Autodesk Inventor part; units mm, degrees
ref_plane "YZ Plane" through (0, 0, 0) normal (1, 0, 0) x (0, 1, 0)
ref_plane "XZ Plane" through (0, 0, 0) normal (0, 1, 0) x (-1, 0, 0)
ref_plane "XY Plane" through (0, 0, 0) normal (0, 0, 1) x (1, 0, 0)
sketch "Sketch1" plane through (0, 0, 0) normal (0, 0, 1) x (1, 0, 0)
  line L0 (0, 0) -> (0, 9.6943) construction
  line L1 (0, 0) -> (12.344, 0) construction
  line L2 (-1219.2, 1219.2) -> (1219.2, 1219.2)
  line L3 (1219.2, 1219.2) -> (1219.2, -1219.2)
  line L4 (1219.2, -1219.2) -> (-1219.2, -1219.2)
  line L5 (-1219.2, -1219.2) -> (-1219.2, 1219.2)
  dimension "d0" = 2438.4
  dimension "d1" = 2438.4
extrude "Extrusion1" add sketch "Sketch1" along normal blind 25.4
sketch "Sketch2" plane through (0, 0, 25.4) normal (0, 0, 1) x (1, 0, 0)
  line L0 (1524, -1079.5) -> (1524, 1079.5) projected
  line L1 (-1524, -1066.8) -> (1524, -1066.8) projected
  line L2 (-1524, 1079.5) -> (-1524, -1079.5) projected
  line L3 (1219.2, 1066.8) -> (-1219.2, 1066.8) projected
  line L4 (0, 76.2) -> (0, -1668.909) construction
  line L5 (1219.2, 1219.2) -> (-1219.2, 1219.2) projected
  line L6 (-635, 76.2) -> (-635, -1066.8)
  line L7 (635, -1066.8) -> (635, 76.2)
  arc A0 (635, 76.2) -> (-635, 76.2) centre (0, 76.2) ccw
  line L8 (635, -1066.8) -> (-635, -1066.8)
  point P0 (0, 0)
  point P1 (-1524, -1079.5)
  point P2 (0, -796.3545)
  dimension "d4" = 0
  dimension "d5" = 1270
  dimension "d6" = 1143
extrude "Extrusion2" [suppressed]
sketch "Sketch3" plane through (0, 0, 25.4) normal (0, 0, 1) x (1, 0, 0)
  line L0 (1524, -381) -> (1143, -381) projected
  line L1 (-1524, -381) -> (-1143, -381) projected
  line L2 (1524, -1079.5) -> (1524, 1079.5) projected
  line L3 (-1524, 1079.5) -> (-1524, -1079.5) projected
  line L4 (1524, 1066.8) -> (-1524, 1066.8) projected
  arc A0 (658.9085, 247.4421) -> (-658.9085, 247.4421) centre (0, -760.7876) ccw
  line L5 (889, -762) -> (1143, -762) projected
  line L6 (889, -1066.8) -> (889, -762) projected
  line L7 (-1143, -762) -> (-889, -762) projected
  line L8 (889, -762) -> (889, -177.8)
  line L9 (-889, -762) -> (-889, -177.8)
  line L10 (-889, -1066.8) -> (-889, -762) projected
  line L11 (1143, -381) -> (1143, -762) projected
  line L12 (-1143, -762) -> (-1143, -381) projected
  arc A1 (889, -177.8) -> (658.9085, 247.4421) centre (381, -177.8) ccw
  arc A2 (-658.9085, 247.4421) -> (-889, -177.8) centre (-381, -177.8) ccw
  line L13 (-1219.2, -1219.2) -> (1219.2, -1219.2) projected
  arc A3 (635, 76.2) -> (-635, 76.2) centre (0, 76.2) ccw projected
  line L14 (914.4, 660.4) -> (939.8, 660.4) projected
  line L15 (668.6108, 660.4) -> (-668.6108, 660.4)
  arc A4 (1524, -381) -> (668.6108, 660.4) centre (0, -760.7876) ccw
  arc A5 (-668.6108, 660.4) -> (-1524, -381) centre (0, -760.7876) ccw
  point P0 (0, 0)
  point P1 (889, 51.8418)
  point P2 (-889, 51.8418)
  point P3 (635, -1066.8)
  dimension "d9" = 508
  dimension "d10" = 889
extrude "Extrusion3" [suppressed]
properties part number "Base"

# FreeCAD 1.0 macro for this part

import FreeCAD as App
import Part
import Sketcher

V = App.Vector
Q = App.Units.Quantity

doc = App.newDocument("Part")
body = doc.addObject("PartDesign::Body", "Body")

# Sketch on XY plane
sketch1 = body.newObject("Sketcher::SketchObject", "Sketch")
sketch1.AttachmentSupport = (doc.getObject("XY_Plane"), [""])
sketch1.MapMode = "FlatFace"
sketch1.addGeometry([
    Part.LineSegment(V(1219.2, 1219.2, 0), V(-1219.2, 1219.2, 0)),
    Part.LineSegment(V(-1219.2, 1219.2, 0), V(-1219.2, -1219.2, 0)),
    Part.LineSegment(V(-1219.2, -1219.2, 0), V(1219.2, -1219.2, 0)),
    Part.LineSegment(V(1219.2, -1219.2, 0), V(1219.2, 1219.2, 0)),
], False)
sketch1.addConstraint([
    Sketcher.Constraint("Coincident", 0, 2, 1, 1),
    Sketcher.Constraint("Coincident", 1, 2, 2, 1),
    Sketcher.Constraint("Coincident", 2, 2, 3, 1),
    Sketcher.Constraint("Coincident", 3, 2, 0, 1),
    Sketcher.Constraint("Horizontal", 0),
    Sketcher.Constraint("Vertical", 1),
    Sketcher.Constraint("Horizontal", 2),
    Sketcher.Constraint("Vertical", 3),
    Sketcher.Constraint("Symmetric", 0, 2, 2, 2, -1, 1),
    Sketcher.Constraint("Equal", 2, 1),
    Sketcher.Constraint("DistanceX", 0, 2, 0, 1, Q("96 in")),
])
pad1 = body.newObject("PartDesign::Pad", "Pad")
pad1.Profile = sketch1
pad1.Length = Q("1 in")

doc.recompute()
